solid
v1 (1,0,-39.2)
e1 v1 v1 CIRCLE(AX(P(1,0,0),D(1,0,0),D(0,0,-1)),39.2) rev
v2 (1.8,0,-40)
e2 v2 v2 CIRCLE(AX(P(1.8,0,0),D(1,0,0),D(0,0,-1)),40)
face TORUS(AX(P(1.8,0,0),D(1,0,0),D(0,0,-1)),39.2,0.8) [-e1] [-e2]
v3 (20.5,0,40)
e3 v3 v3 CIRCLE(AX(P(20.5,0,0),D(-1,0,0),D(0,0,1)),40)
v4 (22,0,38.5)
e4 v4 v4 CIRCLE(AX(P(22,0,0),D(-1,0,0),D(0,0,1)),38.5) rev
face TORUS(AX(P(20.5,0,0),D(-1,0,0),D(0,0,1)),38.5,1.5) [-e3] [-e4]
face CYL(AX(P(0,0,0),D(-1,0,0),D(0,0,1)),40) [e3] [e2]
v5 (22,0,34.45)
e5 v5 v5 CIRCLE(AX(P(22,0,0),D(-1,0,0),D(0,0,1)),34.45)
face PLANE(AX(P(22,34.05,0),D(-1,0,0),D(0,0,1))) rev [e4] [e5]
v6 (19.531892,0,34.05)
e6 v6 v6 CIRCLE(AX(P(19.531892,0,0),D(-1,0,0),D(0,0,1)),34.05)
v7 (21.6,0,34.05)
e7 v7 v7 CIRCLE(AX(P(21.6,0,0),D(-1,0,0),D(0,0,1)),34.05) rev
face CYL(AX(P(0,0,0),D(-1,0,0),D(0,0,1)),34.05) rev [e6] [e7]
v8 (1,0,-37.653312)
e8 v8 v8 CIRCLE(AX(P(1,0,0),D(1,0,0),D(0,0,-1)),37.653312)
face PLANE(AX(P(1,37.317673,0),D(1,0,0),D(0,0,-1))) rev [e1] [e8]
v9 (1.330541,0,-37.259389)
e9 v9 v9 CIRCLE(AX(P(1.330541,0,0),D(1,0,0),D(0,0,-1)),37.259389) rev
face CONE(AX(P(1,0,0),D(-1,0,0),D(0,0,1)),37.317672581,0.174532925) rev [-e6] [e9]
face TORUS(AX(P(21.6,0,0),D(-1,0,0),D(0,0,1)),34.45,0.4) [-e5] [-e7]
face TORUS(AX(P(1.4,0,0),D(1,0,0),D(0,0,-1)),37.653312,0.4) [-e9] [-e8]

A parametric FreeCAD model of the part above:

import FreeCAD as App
import Part
import Sketcher
Q = App.Units.Quantity


def edges_at(feature, points):
    """Names of the edges that pass closest to the given points."""
    edges = feature.Shape.Edges
    near = lambda p: min(range(len(edges)), key=lambda i: edges[i].distToShape(Part.Vertex(*p))[0])
    return sorted({f"Edge{near(p) + 1}" for p in points})

doc = App.newDocument("Part")
body = doc.addObject("PartDesign::Body", "Body")

# Sketch on XY plane
sketch1 = body.newObject("Sketcher::SketchObject", "Sketch")
sketch1.AttachmentSupport = (doc.getObject("XY_Plane"), [""])
sketch1.MapMode = "FlatFace"
sketch1.addGeometry([
    Part.LineSegment(App.Vector(22, 34, 0), App.Vector(22, 40, 0)),  # 0
    Part.LineSegment(App.Vector(22, 40, 0), App.Vector(1, 40, 0)),  # 1
    Part.LineSegment(App.Vector(1, 40, 0), App.Vector(1, 37.3, 0)),  # 2
    Part.LineSegment(App.Vector(1, 37.3, 0), App.Vector(19.5, 34, 0)),  # 3
    Part.LineSegment(App.Vector(19.5, 34, 0), App.Vector(22, 34, 0)),  # 4
], False)
sketch1.addConstraint([
    Sketcher.Constraint("Coincident", 0, 2, 1, 1),
    Sketcher.Constraint("Coincident", 1, 2, 2, 1),
    Sketcher.Constraint("Coincident", 2, 2, 3, 1),
    Sketcher.Constraint("Coincident", 3, 2, 4, 1),
    Sketcher.Constraint("Coincident", 4, 2, 0, 1),
    Sketcher.Constraint("Vertical", 0),
    Sketcher.Constraint("Horizontal", 1),
    Sketcher.Constraint("Vertical", 2),
    Sketcher.Constraint("Horizontal", 4),
    Sketcher.Constraint("DistanceX", 1, 2, 1, 1, 21.0),
    Sketcher.Constraint("Angle", 3, Q("-10 deg")),
    Sketcher.Constraint("DistanceX", -1, 1, 0, 2, 22.0),
    Sketcher.Constraint("DistanceY", -1, 1, 0, 2, 40.0),
    Sketcher.Constraint("DistanceY", 0, 1, 0, 2, 5.95),
    Sketcher.Constraint("DistanceX", 4, 1, 4, 2, 2.468108),
])
revolution = body.newObject("PartDesign::Revolution", "Revolution")
revolution.Profile = sketch1
revolution.ReferenceAxis = (sketch1, ["H_Axis"])
revolution.Angle = 360
doc.recompute()

fillet = body.newObject("PartDesign::Fillet", "Fillet")
fillet.Base = (revolution, edges_at(revolution, [(22, 0, -40)]))
fillet.Radius = 1.5
doc.recompute()

fillet2 = body.newObject("PartDesign::Fillet", "Fillet001")
fillet2.Base = (fillet, edges_at(fillet, [(1, 0, -40)]))
fillet2.Radius = 0.8
doc.recompute()

fillet3 = body.newObject("PartDesign::Fillet", "Fillet002")
fillet3.Base = (fillet2, edges_at(fillet2, [(22, 0, -34.05), (1, 0, -37.318)]))
fillet3.Radius = 0.4

doc.recompute()
